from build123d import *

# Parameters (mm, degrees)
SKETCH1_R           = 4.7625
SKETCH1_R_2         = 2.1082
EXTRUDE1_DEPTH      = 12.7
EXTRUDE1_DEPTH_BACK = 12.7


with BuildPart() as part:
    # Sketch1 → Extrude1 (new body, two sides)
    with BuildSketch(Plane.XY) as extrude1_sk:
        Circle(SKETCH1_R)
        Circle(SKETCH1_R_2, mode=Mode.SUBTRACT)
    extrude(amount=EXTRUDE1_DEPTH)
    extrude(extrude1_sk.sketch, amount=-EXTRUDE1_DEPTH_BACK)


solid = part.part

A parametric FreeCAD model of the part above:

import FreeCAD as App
import Part
import Sketcher
from FreeCAD import Vector
Q = App.Units.Quantity

doc = App.newDocument("Part")
params = doc.addObject("Spreadsheet::Sheet", "Params")
for row, (alias, value) in enumerate([
    ("sketch1_diameter", "0.375 in"),
    ("sketch1_diameter2", "0.166 in"),
    ("pad1_length", "0.5 in"),
    ("pad1_length2", "0.5 in"),
], start=1):
    params.set(f"A{row}", alias)
    params.set(f"B{row}", "=" + value)
    params.setAlias(f"B{row}", alias)

body = doc.addObject("PartDesign::Body", "Body")

sketch1 = body.newObject("Sketcher::SketchObject", "Sketch")
sketch1.AttachmentSupport = (doc.getObject("XY_Plane"), [""])
sketch1.MapMode = "FlatFace"
sketch1.addGeometry([
    Part.Circle(Vector(0, 0, 0), Vector(0, 0, 1), 4.7625),
    Part.Circle(Vector(0, 0, 0), Vector(0, 0, 1), 2.1082),
], False)
sketch1.addConstraint([
    Sketcher.Constraint("Coincident", 0, 3, -1, 1),
    Sketcher.Constraint("Coincident", 1, 3, -1, 1),
    Sketcher.Constraint("Diameter", 0, Q("0.375 in")),
    Sketcher.Constraint("Diameter", 1, Q("0.166 in")),
])
sketch1.setExpression("Constraints[2]", "Params.sketch1_diameter")
sketch1.setExpression("Constraints[3]", "Params.sketch1_diameter2")
pad1 = body.newObject("PartDesign::Pad", "Pad")
pad1.Profile = sketch1
pad1.Type = "TwoLengths"
pad1.setExpression("Length", "Params.pad1_length")
pad1.setExpression("Length2", "Params.pad1_length2")

doc.recompute()
